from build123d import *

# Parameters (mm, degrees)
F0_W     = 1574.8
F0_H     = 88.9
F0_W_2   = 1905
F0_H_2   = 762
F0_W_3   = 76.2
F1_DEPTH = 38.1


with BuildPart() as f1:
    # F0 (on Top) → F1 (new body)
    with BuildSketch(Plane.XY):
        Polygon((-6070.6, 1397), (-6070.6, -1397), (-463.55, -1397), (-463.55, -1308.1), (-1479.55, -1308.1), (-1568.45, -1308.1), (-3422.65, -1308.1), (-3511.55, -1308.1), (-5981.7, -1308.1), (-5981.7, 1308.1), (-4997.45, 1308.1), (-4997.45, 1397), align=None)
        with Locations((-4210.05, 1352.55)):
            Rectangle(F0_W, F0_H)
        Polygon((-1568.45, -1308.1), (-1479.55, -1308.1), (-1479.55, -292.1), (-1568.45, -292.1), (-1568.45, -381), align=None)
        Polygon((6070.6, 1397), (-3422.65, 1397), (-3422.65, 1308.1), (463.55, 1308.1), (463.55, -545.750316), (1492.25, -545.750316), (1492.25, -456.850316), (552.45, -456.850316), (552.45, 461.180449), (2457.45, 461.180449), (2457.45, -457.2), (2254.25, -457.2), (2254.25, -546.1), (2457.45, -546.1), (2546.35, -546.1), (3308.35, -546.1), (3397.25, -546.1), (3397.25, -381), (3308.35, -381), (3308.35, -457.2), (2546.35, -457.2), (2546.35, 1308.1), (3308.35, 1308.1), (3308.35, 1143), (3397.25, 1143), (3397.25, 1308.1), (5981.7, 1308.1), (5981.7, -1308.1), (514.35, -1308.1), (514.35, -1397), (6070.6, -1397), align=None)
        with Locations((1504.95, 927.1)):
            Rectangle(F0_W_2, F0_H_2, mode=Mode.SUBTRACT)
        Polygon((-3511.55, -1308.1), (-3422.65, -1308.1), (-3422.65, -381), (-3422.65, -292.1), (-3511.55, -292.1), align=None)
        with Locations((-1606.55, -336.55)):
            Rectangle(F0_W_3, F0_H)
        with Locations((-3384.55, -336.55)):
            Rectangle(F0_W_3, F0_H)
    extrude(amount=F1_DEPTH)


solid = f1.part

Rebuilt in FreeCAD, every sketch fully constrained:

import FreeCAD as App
import Part
import Sketcher

V = App.Vector
Q = App.Units.Quantity


def add_polygon(sketch, points):
    """Adds a closed chain of lines whose ends are joined by coincident constraints."""
    first, n = sketch.GeometryCount, len(points)
    for a, b in zip(points, points[1:] + points[:1]):
        sketch.addGeometry(Part.LineSegment(App.Vector(*a, 0), App.Vector(*b, 0)), False)
    for i in range(n):
        sketch.addConstraint(Sketcher.Constraint("Coincident", first + i, 2, first + (i + 1) % n, 1))

doc = App.newDocument("Part")
body = doc.addObject("PartDesign::Body", "Body")

# Sketch on XY plane
sketch1 = doc.addObject("Sketcher::SketchObject", "Sketch")
body.addObject(sketch1)
sketch1.AttachmentSupport = (doc.XY_Plane, [""])
sketch1.MapMode = "FlatFace"
add_polygon(sketch1, [(-6071, 1397), (-6071, -1397), (-464, -1397), (-464, -1308), (-1480, -1308), (-1480, -292), (-1645, -292), (-1645, -381), (-1568, -381), (-1568, -1308), (-3423, -1308), (-3423, -381), (-3346, -381), (-3346, -292), (-3512, -292), (-3512, -1308), (-5982, -1308), (-5982, 1308), (464, 1308), (464, -546), (1492, -546), (1492, -457), (552, -457), (552, 461), (2457, 461), (2457, -457), (2254, -457), (2254, -546), (3397, -546), (3397, -381), (3308, -381), (3308, -457), (2546, -457), (2546, 1308), (3308, 1308), (3308, 1143), (3397, 1143), (3397, 1308), (5982, 1308), (5982, -1308), (514, -1308), (514, -1397), (6071, -1397), (6071, 1397)])  # lines 0-43
add_polygon(sketch1, [(2457, 546), (552, 546), (552, 1308), (2457, 1308)])  # lines 44-47
sketch1.addConstraint(Sketcher.Constraint("Vertical", 0))
sketch1.addConstraint(Sketcher.Constraint("Horizontal", 1))
sketch1.addConstraint(Sketcher.Constraint("Vertical", 2))
sketch1.addConstraint(Sketcher.Constraint("Horizontal", 3))
sketch1.addConstraint(Sketcher.Constraint("Vertical", 4))
sketch1.addConstraint(Sketcher.Constraint("Horizontal", 5))
sketch1.addConstraint(Sketcher.Constraint("Vertical", 6))
sketch1.addConstraint(Sketcher.Constraint("Horizontal", 7))
sketch1.addConstraint(Sketcher.Constraint("Vertical", 8))
sketch1.addConstraint(Sketcher.Constraint("Horizontal", 9))
sketch1.addConstraint(Sketcher.Constraint("Vertical", 10))
sketch1.addConstraint(Sketcher.Constraint("Horizontal", 11))
sketch1.addConstraint(Sketcher.Constraint("Vertical", 12))
sketch1.addConstraint(Sketcher.Constraint("Horizontal", 13))
sketch1.addConstraint(Sketcher.Constraint("Vertical", 14))
sketch1.addConstraint(Sketcher.Constraint("Horizontal", 15))
sketch1.addConstraint(Sketcher.Constraint("Vertical", 16))
sketch1.addConstraint(Sketcher.Constraint("Horizontal", 17))
sketch1.addConstraint(Sketcher.Constraint("Vertical", 18))
sketch1.addConstraint(Sketcher.Constraint("Horizontal", 19))
sketch1.addConstraint(Sketcher.Constraint("Vertical", 20))
sketch1.addConstraint(Sketcher.Constraint("Horizontal", 21))
sketch1.addConstraint(Sketcher.Constraint("Vertical", 22))
sketch1.addConstraint(Sketcher.Constraint("Horizontal", 23))
sketch1.addConstraint(Sketcher.Constraint("Vertical", 24))
sketch1.addConstraint(Sketcher.Constraint("Horizontal", 25))
sketch1.addConstraint(Sketcher.Constraint("Vertical", 26))
sketch1.addConstraint(Sketcher.Constraint("Horizontal", 27))
sketch1.addConstraint(Sketcher.Constraint("Vertical", 28))
sketch1.addConstraint(Sketcher.Constraint("Horizontal", 29))
sketch1.addConstraint(Sketcher.Constraint("Vertical", 30))
sketch1.addConstraint(Sketcher.Constraint("Horizontal", 31))
sketch1.addConstraint(Sketcher.Constraint("Vertical", 32))
sketch1.addConstraint(Sketcher.Constraint("Horizontal", 33))
sketch1.addConstraint(Sketcher.Constraint("Vertical", 34))
sketch1.addConstraint(Sketcher.Constraint("Horizontal", 35))
sketch1.addConstraint(Sketcher.Constraint("Vertical", 36))
sketch1.addConstraint(Sketcher.Constraint("Horizontal", 37))
sketch1.addConstraint(Sketcher.Constraint("Vertical", 38))
sketch1.addConstraint(Sketcher.Constraint("Horizontal", 39))
sketch1.addConstraint(Sketcher.Constraint("Vertical", 40))
sketch1.addConstraint(Sketcher.Constraint("Horizontal", 41))
sketch1.addConstraint(Sketcher.Constraint("Vertical", 42))
sketch1.addConstraint(Sketcher.Constraint("Horizontal", 43))
sketch1.addConstraint(Sketcher.Constraint("Horizontal", 44))
sketch1.addConstraint(Sketcher.Constraint("Vertical", 45))
sketch1.addConstraint(Sketcher.Constraint("Horizontal", 46))
sketch1.addConstraint(Sketcher.Constraint("Vertical", 47))
sketch1.addConstraint(Sketcher.Constraint("Symmetric", 2, 2, 17, 2, -1, 1))
sketch1.addConstraint(Sketcher.Constraint("Symmetric", 15, 2, 37, 2, -1, 1))
sketch1.addConstraint(Sketcher.Constraint("Symmetric", 0, 2, 42, 2, -1, 1))
sketch1.addConstraint(Sketcher.Constraint("Horizontal", 3, 2, 8, 2))
sketch1.addConstraint(Sketcher.Constraint("Horizontal", 7, 2, 10, 2))
sketch1.addConstraint(Sketcher.Constraint("Horizontal", 5, 2, 12, 2))
sketch1.addConstraint(Sketcher.Constraint("Horizontal", 9, 2, 14, 2))
sketch1.addConstraint(Sketcher.Constraint("Horizontal", 11, 2, 28, 2))
sketch1.addConstraint(Sketcher.Constraint("Horizontal", 25, 2, 30, 2))
sketch1.addConstraint(Sketcher.Constraint("Horizontal", 17, 2, 32, 2))
sketch1.addConstraint(Sketcher.Constraint("Horizontal", 15, 2, 38, 2))
sketch1.addConstraint(Sketcher.Constraint("Horizontal", 1, 2, 40, 2))
sketch1.addConstraint(Sketcher.Constraint("Horizontal", 37, 2, 45, 2))
sketch1.addConstraint(Sketcher.Constraint("Vertical", 30, 2, 33, 2))
sketch1.addConstraint(Sketcher.Constraint("Vertical", 28, 2, 35, 2))
sketch1.addConstraint(Sketcher.Constraint("Vertical", 22, 2, 44, 2))
sketch1.addConstraint(Sketcher.Constraint("Vertical", 24, 2, 46, 2))
sketch1.addConstraint(Sketcher.Constraint("Equal", 7, 11))
sketch1.addConstraint(Sketcher.Constraint("Equal", 5, 13))
sketch1.addConstraint(Sketcher.Constraint("Equal", 35, 2))
sketch1.addConstraint(Sketcher.Constraint("Equal", 3, 4))
sketch1.addConstraint(Sketcher.Constraint("Equal", 2, 6))
sketch1.addConstraint(Sketcher.Constraint("Equal", 12, 20))
sketch1.addConstraint(Sketcher.Constraint("Equal", 20, 26))
sketch1.addConstraint(Sketcher.Constraint("Equal", 13, 28))
sketch1.addConstraint(Sketcher.Constraint("Equal", 11, 30))
sketch1.addConstraint(Sketcher.Constraint("Equal", 28, 34))
sketch1.addConstraint(Sketcher.Constraint("Equal", 33, 45))
sketch1.addConstraint(Sketcher.Constraint("DistanceX", 3, 2, 3, 1, Q("40 in")))
sketch1.addConstraint(Sketcher.Constraint("DistanceX", 7, 1, 7, 2, Q("3 in")))
sketch1.addConstraint(Sketcher.Constraint("DistanceX", 9, 2, 9, 1, Q("73 in")))
sketch1.addConstraint(Sketcher.Constraint("DistanceX", 21, 2, 21, 1, Q("37 in")))
sketch1.addConstraint(Sketcher.Constraint("DistanceX", 23, 1, 23, 2, Q("75 in")))
sketch1.addConstraint(Sketcher.Constraint("DistanceX", 25, 2, 25, 1, Q("8 in")))
sketch1.addConstraint(Sketcher.Constraint("DistanceX", 27, 1, 27, 2, Q("45 in")))
sketch1.addConstraint(Sketcher.Constraint("DistanceX", 31, 2, 31, 1, Q("30 in")))
sketch1.addConstraint(Sketcher.Constraint("DistanceX", 43, 2, 43, 1, Q("478 in")))
sketch1.addConstraint(Sketcher.Constraint("DistanceY", 0, 2, 0, 1, Q("110 in")))
sketch1.addConstraint(Sketcher.Constraint("DistanceY", 16, 1, 16, 2, Q("103 in")))
sketch1.addConstraint(Sketcher.Constraint("DistanceX", 19, 1, 19, 2, Q("40.5 in")))
sketch1.addConstraint(Sketcher.Constraint("DistanceX", 7, 2, 17, 2, Q("80 in")))
sketch1.addConstraint(Sketcher.Constraint("DistanceX", 18, 2, 39, 2, Q("2 in")))
sketch1.addConstraint(Sketcher.Constraint("DistanceX", 15, 2, 15, 1, Q("97.25 in")))
sketch1.addConstraint(Sketcher.Constraint("DistanceY", 24, 2, 24, 1, Q("918.380449 mm")))
sketch1.addConstraint(Sketcher.Constraint("DistanceY", 18, 2, 18, 1, Q("1853.850316 mm")))
pad1 = doc.addObject("PartDesign::Pad", "Pad")
body.addObject(pad1)
pad1.Profile = sketch1
pad1.Length = Q("1.5 in")

doc.recompute()
